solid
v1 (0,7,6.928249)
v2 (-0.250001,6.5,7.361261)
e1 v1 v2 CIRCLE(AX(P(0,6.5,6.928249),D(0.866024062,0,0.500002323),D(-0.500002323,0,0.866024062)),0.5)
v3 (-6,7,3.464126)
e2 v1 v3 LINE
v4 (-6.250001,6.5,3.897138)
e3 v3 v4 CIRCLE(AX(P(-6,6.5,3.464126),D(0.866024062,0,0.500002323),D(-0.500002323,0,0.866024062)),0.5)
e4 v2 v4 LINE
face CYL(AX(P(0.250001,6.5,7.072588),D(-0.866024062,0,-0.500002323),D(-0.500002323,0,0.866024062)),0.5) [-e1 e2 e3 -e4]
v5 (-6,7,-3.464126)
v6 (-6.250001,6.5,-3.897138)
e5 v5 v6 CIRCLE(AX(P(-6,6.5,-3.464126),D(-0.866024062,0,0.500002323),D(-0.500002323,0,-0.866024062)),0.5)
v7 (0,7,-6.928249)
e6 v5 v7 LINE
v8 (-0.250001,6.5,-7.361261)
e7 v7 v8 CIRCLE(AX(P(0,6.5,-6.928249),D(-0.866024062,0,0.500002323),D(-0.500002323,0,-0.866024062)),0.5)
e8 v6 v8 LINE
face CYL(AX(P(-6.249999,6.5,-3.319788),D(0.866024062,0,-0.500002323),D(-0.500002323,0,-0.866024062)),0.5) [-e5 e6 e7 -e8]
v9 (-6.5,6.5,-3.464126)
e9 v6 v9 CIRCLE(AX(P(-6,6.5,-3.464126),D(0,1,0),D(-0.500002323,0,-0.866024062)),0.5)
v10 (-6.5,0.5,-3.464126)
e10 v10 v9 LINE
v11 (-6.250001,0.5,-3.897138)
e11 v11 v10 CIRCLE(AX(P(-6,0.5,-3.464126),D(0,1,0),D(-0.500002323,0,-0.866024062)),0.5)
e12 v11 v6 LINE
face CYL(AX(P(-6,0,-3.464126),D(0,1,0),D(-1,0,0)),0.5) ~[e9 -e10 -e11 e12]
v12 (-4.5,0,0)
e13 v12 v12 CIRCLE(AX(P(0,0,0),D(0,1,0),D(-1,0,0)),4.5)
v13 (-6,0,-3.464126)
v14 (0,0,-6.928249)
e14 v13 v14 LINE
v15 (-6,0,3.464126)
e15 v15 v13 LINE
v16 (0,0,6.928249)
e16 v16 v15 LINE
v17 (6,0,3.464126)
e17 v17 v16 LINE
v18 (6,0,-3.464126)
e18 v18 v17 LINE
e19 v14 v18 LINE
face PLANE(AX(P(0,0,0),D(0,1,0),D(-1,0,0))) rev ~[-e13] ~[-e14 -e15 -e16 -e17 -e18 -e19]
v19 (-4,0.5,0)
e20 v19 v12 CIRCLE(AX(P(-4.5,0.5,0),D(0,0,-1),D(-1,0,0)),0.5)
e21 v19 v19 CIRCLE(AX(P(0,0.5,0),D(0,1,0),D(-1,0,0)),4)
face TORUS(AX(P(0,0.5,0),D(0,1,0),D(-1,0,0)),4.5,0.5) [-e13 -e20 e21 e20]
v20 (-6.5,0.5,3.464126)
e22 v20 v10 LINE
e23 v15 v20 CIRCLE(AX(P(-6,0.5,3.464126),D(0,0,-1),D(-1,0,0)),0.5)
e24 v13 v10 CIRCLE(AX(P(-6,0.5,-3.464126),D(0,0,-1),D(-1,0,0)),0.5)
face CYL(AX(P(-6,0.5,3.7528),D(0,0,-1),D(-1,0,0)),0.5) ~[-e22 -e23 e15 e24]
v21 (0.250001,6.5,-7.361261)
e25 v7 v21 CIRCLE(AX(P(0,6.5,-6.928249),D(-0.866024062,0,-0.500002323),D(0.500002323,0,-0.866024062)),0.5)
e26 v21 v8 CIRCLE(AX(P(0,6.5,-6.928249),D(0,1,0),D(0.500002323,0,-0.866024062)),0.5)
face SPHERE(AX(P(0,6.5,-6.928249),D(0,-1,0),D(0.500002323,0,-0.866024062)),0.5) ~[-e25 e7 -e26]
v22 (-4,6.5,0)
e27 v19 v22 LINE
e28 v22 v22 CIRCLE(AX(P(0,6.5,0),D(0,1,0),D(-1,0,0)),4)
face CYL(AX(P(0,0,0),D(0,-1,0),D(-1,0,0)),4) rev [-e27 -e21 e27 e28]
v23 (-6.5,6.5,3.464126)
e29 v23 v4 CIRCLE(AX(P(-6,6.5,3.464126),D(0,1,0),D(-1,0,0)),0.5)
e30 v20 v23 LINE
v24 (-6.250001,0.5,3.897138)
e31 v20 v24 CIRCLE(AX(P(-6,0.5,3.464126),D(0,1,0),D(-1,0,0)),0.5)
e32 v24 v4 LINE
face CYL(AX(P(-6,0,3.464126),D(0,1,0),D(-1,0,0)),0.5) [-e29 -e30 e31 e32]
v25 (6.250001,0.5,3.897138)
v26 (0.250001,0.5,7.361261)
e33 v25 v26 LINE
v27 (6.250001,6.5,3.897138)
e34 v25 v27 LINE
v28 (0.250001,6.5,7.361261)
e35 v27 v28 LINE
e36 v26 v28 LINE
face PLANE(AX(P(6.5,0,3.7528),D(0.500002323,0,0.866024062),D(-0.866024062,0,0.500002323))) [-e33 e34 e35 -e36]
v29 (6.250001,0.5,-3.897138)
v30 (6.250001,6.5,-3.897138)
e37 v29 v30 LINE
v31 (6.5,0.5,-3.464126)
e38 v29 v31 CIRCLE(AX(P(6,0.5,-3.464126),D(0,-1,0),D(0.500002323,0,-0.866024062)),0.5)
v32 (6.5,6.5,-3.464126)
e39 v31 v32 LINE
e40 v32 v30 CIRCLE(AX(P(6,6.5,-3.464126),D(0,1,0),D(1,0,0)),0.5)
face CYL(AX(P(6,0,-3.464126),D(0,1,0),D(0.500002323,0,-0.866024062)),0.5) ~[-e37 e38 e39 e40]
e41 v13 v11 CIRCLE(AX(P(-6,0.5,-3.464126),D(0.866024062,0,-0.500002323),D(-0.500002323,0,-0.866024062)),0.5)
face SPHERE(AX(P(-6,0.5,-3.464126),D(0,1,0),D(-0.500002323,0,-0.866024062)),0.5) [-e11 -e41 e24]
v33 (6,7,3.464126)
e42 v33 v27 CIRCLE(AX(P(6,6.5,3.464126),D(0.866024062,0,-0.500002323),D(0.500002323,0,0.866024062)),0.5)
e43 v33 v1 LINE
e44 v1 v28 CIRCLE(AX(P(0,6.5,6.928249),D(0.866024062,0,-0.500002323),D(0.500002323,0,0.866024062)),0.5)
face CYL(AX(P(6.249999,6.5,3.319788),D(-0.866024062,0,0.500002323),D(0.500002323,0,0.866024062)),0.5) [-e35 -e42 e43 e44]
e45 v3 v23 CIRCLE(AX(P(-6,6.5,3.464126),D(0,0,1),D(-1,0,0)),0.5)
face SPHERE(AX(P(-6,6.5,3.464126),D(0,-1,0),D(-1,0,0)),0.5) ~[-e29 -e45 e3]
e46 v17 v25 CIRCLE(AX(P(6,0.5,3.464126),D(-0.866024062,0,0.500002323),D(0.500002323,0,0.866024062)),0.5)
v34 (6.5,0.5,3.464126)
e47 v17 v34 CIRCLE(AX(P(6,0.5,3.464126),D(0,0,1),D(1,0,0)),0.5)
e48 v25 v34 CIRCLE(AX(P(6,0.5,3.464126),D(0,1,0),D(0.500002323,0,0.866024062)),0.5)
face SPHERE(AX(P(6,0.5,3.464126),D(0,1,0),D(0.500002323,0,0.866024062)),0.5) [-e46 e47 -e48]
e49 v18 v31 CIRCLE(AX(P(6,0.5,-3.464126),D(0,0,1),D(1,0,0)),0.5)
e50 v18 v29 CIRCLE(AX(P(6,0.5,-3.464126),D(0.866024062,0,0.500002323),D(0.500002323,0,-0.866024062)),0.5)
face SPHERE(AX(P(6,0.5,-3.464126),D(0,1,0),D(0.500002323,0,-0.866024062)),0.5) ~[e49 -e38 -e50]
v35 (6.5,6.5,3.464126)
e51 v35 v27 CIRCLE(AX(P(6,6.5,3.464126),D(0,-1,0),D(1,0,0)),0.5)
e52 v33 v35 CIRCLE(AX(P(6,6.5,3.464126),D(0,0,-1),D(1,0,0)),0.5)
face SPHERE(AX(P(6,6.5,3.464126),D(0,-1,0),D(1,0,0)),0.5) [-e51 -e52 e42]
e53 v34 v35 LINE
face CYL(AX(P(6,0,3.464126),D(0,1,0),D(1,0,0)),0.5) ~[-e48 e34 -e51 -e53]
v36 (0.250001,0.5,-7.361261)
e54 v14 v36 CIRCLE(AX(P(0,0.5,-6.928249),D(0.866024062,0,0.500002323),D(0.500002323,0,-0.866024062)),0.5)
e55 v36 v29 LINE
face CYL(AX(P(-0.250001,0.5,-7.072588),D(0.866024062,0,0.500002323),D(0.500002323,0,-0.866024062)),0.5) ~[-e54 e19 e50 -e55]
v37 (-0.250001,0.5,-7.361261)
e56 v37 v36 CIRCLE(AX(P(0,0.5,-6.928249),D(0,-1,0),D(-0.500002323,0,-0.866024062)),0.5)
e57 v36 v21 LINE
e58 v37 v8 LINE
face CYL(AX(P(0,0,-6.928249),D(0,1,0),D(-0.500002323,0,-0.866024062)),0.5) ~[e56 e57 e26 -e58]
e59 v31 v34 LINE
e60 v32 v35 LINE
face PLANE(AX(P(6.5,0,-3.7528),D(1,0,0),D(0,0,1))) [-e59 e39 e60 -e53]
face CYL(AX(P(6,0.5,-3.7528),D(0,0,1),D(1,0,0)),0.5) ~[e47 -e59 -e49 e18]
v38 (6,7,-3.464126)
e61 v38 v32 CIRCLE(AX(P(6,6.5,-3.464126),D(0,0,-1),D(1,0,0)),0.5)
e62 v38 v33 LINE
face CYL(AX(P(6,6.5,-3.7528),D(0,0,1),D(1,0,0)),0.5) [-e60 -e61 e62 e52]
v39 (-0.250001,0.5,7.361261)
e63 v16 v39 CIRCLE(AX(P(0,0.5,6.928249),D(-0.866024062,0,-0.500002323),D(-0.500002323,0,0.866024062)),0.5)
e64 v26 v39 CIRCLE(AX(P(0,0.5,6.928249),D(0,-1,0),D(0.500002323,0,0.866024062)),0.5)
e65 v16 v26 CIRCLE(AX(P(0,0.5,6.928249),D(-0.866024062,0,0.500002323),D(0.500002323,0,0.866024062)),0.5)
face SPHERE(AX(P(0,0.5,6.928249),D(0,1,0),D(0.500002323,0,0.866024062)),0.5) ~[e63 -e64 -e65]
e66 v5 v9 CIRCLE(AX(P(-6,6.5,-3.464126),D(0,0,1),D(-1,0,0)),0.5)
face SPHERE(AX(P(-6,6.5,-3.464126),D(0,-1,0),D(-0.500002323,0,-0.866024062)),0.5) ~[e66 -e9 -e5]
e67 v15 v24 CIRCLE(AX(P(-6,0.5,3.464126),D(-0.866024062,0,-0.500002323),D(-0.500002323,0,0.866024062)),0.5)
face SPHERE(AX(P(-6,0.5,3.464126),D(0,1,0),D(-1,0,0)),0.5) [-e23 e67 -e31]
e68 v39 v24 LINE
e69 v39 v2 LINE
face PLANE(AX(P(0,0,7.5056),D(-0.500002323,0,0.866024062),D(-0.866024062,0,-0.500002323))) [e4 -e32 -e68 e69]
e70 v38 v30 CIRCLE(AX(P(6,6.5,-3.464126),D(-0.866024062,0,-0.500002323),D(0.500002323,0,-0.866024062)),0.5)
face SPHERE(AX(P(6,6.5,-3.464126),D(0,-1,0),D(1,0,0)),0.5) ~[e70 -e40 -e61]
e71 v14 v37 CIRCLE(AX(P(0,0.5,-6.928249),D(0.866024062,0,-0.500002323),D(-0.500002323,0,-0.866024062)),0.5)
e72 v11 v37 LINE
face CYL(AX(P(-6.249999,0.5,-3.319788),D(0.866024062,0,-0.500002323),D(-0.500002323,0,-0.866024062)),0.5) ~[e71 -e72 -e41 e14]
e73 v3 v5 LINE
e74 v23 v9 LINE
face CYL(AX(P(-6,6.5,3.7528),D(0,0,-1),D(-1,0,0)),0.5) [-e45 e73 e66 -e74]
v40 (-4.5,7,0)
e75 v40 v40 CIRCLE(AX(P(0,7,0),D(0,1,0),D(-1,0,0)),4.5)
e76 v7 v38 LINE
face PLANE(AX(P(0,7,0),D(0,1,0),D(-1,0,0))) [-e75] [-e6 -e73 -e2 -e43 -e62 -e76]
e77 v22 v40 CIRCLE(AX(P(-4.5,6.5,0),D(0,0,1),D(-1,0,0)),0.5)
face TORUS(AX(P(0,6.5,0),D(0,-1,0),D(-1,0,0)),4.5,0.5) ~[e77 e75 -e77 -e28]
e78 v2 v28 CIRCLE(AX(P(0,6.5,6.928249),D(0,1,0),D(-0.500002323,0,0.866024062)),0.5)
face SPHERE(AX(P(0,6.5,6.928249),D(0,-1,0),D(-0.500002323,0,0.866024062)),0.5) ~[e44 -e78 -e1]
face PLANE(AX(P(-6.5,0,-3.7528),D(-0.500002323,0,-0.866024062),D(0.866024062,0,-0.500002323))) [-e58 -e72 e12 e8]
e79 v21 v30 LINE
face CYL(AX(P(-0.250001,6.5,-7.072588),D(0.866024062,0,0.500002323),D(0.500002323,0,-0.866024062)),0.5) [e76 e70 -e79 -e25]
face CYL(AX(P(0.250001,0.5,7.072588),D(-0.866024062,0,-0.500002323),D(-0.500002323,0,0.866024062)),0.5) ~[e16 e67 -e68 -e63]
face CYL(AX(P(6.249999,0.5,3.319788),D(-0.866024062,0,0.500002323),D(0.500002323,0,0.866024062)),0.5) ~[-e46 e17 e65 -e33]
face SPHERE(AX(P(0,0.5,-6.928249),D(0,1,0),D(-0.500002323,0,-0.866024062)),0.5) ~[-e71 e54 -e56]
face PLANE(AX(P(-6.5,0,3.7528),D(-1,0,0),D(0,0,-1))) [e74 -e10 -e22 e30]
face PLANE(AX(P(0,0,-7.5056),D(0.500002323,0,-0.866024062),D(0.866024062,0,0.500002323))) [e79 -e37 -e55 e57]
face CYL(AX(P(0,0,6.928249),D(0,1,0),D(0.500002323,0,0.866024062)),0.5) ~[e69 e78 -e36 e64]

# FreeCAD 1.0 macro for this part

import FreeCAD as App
import Part
import Sketcher
from FreeCAD import Vector
Q = App.Units.Quantity

doc = App.newDocument("Part")
body = doc.addObject("PartDesign::Body", "Body")

# Sketch on XZ plane
sketch1 = body.newObject("Sketcher::SketchObject", "Sketch")
sketch1.AttachmentSupport = (doc.getObject("XZ_Plane"), [""])
sketch1.MapMode = "FlatFace"
sketch1.addGeometry([
    Part.LineSegment(Vector(-6.5, -3.8, 0), Vector(-6.5, 3.8, 0)),  # 0
    Part.LineSegment(Vector(-6.5, 3.8, 0), Vector(0, 7.5, 0)),  # 1
    Part.LineSegment(Vector(0, 7.5, 0), Vector(6.5, 3.8, 0)),  # 2
    Part.LineSegment(Vector(6.5, 3.8, 0), Vector(6.5, -3.8, 0)),  # 3
    Part.LineSegment(Vector(6.5, -3.8, 0), Vector(0, -7.5, 0)),  # 4
    Part.LineSegment(Vector(0, -7.5, 0), Vector(-6.5, -3.8, 0)),  # 5
    Part.Circle(Vector(0, 0, 0), Vector(0, 0, 1), 4),  # 6
], False)
sketch1.addConstraint([
    Sketcher.Constraint("Coincident", 0, 2, 1, 1),
    Sketcher.Constraint("Coincident", 1, 2, 2, 1),
    Sketcher.Constraint("Coincident", 2, 2, 3, 1),
    Sketcher.Constraint("Coincident", 3, 2, 4, 1),
    Sketcher.Constraint("Coincident", 4, 2, 5, 1),
    Sketcher.Constraint("Coincident", 5, 2, 0, 1),
    Sketcher.Constraint("Vertical", 0),
    Sketcher.Constraint("Vertical", 3),
    Sketcher.Constraint("Coincident", 6, 3, -1, 1),
    Sketcher.Constraint("Symmetric", 0, 2, 3, 2, -1, 1),
    Sketcher.Constraint("Symmetric", 1, 2, 4, 2, -1, 1),
    Sketcher.Constraint("PointOnObject", 1, 2, -2),
    Sketcher.Constraint("Parallel", 2, 5),
    Sketcher.Constraint("Horizontal", 0, 2, 2, 2),
    Sketcher.Constraint("Diameter", 6, Q("8 mm")),
    Sketcher.Constraint("DistanceX", 0, 2, 2, 2, Q("13 mm")),
    Sketcher.Constraint("Angle", 1, Q("30.0002 deg")),
    Sketcher.Constraint("DistanceY", 0, 1, 0, 2, Q("7.5056 mm")),
])
pad1 = body.newObject("PartDesign::Pad", "Pad")
pad1.Profile = sketch1
pad1.Length = 7
pad1.Reversed = True
doc.recompute()

fillet = body.newObject("PartDesign::Fillet", "Fillet")
fillet.Base = (pad1, ["Edge1"])
fillet.UseAllEdges = True
fillet.Radius = 0.5

doc.recompute()
